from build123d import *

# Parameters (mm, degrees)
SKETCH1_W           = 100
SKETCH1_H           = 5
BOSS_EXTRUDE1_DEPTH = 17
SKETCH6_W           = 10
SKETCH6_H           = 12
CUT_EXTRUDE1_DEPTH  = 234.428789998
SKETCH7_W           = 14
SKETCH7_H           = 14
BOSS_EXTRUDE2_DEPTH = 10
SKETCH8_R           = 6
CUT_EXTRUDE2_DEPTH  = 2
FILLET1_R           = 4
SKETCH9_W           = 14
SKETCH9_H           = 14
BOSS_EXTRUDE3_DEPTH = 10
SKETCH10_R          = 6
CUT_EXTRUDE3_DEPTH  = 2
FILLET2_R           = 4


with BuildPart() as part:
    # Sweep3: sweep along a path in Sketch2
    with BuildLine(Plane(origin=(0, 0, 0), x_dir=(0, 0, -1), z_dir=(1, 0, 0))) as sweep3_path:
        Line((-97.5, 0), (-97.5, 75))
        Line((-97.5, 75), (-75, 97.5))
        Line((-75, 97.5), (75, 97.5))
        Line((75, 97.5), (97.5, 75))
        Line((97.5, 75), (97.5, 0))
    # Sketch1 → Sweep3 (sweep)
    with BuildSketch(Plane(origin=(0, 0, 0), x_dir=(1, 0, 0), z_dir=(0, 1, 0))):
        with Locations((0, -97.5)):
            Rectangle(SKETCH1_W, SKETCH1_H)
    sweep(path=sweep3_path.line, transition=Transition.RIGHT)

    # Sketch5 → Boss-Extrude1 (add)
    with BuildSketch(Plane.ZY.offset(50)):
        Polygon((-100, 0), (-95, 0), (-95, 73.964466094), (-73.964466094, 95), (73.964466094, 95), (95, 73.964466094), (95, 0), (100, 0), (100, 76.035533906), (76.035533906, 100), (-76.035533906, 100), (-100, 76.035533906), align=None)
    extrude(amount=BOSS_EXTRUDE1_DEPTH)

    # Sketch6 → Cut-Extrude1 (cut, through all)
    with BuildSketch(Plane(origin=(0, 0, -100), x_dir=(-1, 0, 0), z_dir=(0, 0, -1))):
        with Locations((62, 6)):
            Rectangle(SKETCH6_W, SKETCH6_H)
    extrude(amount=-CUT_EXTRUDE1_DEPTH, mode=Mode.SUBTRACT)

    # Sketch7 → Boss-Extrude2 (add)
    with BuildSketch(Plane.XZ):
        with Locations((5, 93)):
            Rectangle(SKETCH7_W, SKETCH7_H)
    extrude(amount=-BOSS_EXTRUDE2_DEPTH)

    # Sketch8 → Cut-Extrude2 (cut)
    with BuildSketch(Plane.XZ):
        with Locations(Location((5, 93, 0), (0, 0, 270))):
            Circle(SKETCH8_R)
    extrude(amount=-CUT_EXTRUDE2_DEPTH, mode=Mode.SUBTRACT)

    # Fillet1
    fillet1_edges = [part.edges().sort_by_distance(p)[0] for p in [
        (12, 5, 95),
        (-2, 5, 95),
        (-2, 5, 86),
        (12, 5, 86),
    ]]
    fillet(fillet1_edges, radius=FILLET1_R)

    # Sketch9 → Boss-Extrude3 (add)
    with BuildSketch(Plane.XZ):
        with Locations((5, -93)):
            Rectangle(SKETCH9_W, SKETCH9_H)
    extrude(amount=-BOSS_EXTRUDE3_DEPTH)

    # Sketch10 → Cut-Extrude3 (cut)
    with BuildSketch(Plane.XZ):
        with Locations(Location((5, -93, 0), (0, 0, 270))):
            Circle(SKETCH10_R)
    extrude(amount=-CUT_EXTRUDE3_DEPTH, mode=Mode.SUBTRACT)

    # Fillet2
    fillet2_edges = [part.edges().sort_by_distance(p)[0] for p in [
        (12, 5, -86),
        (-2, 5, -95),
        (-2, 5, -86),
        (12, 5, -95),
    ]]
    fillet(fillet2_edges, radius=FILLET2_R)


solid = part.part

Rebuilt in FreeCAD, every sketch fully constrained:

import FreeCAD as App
import Part
import Sketcher

V = App.Vector
Q = App.Units.Quantity


def edges_at(feature, points):
    """Names of the edges that pass closest to the given points."""
    edges = feature.Shape.Edges
    near = lambda p: min(range(len(edges)), key=lambda i: edges[i].distToShape(Part.Vertex(*p))[0])
    return sorted({f"Edge{near(p) + 1}" for p in points})


def add_polygon(sketch, points):
    """Adds a closed chain of lines whose ends are joined by coincident constraints."""
    first, n = sketch.GeometryCount, len(points)
    for a, b in zip(points, points[1:] + points[:1]):
        sketch.addGeometry(Part.LineSegment(App.Vector(*a, 0), App.Vector(*b, 0)), False)
    for i in range(n):
        sketch.addConstraint(Sketcher.Constraint("Coincident", first + i, 2, first + (i + 1) % n, 1))

doc = App.newDocument("Part")
params = doc.addObject("Spreadsheet::Sheet", "Params")
for row, (alias, value) in enumerate([
    ("sketch1_width", "100 mm"),
    ("sketch1_height", "5 mm"),
    ("sketch2_width", "75 mm"),
    ("sketch2_height", "150 mm"),
    ("sketch3_height", "5 mm"),
    ("pad1_length", "17 mm"),
    ("sketch4_width", "10 mm"),
    ("sketch4_height", "12 mm"),
    ("sketch5_width", "14 mm"),
    ("pad2_length", "10 mm"),
    ("sketch6_diameter", "12 mm"),
    ("pocket2_length", "2 mm"),
    ("fillet_radius", "4 mm"),
    ("sketch7_width", "14 mm"),
    ("pad3_length", "10 mm"),
    ("sketch8_diameter", "12 mm"),
    ("pocket3_length", "2 mm"),
    ("fillet2_radius", "4 mm"),
], start=1):
    params.set(f"A{row}", alias)
    params.set(f"B{row}", "=" + value)
    params.setAlias(f"B{row}", alias)

body = doc.addObject("PartDesign::Body", "Body")

# Sketch on XZ plane
sketch1 = doc.addObject("Sketcher::SketchObject", "Sketch")
body.addObject(sketch1)
sketch1.AttachmentSupport = (doc.XZ_Plane, [""])
sketch1.MapMode = "FlatFace"
add_polygon(sketch1, [(-50, 95), (-50, 100), (50, 100), (50, 95)])  # lines 0-3
sketch1.addConstraint([
    Sketcher.Constraint("Vertical", 0),
    Sketcher.Constraint("Horizontal", 1),
    Sketcher.Constraint("Vertical", 2),
    Sketcher.Constraint("Horizontal", 3),
    Sketcher.Constraint("DistanceX", 1, 1, 1, 2, Q("100 mm")),
    Sketcher.Constraint("DistanceY", 0, 1, 0, 2, Q("5 mm")),
    Sketcher.Constraint("DistanceX", 0, 2, -1, 1, Q("50 mm")),
    Sketcher.Constraint("DistanceY", -1, 1, 0, 2, Q("100 mm")),
])
sketch1.setExpression("Constraints[8]", "Params.sketch1_width")
sketch1.setExpression("Constraints[9]", "Params.sketch1_height")

# Sketch on YZ plane
sketch2 = doc.addObject("Sketcher::SketchObject", "Sketch001")
body.addObject(sketch2)
sketch2.AttachmentSupport = (doc.YZ_Plane, [""])
sketch2.MapMode = "FlatFace"
sketch2.addGeometry([
    Part.LineSegment(V(0, 97.5, 0), V(75, 97.5, 0)),  # 0
    Part.LineSegment(V(75, 97.5, 0), V(97.5, 75, 0)),  # 1
    Part.LineSegment(V(97.5, 75, 0), V(97.5, -75, 0)),  # 2
    Part.LineSegment(V(97.5, -75, 0), V(75, -97.5, 0)),  # 3
    Part.LineSegment(V(75, -97.5, 0), V(0, -97.5, 0)),  # 4
], False)
sketch2.addConstraint([
    Sketcher.Constraint("Coincident", 0, 2, 1, 1),
    Sketcher.Constraint("Coincident", 1, 2, 2, 1),
    Sketcher.Constraint("Coincident", 2, 2, 3, 1),
    Sketcher.Constraint("Coincident", 3, 2, 4, 1),
    Sketcher.Constraint("Horizontal", 0),
    Sketcher.Constraint("Vertical", 2),
    Sketcher.Constraint("Horizontal", 4),
    Sketcher.Constraint("Symmetric", 0, 1, 4, 2, -1, 1),
    Sketcher.Constraint("PointOnObject", 0, 1, -2),
    Sketcher.Constraint("Perpendicular", 1, 3),
    Sketcher.Constraint("Vertical", 0, 2, 3, 2),
    Sketcher.Constraint("Equal", 1, 3),
    Sketcher.Constraint("DistanceX", 0, 1, 0, 2, Q("75 mm")),
    Sketcher.Constraint("DistanceY", 2, 2, 2, 1, Q("150 mm")),
    Sketcher.Constraint("DistanceY", 3, 2, 0, 2, Q("195 mm")),
])
sketch2.setExpression("Constraints[12]", "Params.sketch2_width")
sketch2.setExpression("Constraints[13]", "Params.sketch2_height")
doc.recompute()

additivepipe = doc.addObject("PartDesign::AdditivePipe", "AdditivePipe")
body.addObject(additivepipe)
additivepipe.Profile = sketch1
additivepipe.Spine = (sketch2, ["Edge1", "Edge2", "Edge3", "Edge4", "Edge5"])
additivepipe.Transition = "Right corner"

# Sketch on YZ plane
sketch3 = doc.addObject("Sketcher::SketchObject", "Sketch002")
body.addObject(sketch3)
sketch3.AttachmentSupport = (doc.YZ_Plane, [""])
sketch3.MapMode = "FlatFace"
sketch3.AttachmentOffset = App.Placement(V(0, 0, -50), App.Rotation())
add_polygon(sketch3, [(0, -100), (0, -95), (73.964466, -95), (95, -73.964466), (95, 73.964466), (73.964466, 95), (0, 95), (0, 100), (76.035534, 100), (100, 76.035534), (100, -76.035534), (76.035534, -100)])  # lines 0-11
sketch3.addConstraint([
    Sketcher.Constraint("Vertical", 0),
    Sketcher.Constraint("Horizontal", 1),
    Sketcher.Constraint("Vertical", 3),
    Sketcher.Constraint("Horizontal", 5),
    Sketcher.Constraint("Vertical", 6),
    Sketcher.Constraint("Horizontal", 7),
    Sketcher.Constraint("Vertical", 9),
    Sketcher.Constraint("Horizontal", 11),
    Sketcher.Constraint("Symmetric", 0, 2, 5, 2, -1, 1),
    Sketcher.Constraint("Symmetric", 7, 2, 10, 2, -1),
    Sketcher.Constraint("PointOnObject", 0, 2, -2),
    Sketcher.Constraint("Perpendicular", 2, 4),
    Sketcher.Constraint("Parallel", 4, 8),
    Sketcher.Constraint("Perpendicular", 8, 10),
    Sketcher.Constraint("Vertical", 1, 2, 4, 2),
    Sketcher.Constraint("Equal", 2, 4),
    Sketcher.Constraint("DistanceY", 0, 1, 0, 2, Q("5 mm")),
    Sketcher.Constraint("DistanceY", 0, 2, -1, 1, Q("95 mm")),
    Sketcher.Constraint("DistanceX", -1, 1, 2, 2, Q("95 mm")),
    Sketcher.Constraint("DistanceX", -1, 1, 8, 2, Q("100 mm")),
    Sketcher.Constraint("DistanceY", 9, 2, 3, 2, Q("150 mm")),
    Sketcher.Constraint("DistanceX", 1, 1, 1, 2, Q("73.964466 mm")),
])
sketch3.setExpression("Constraints[28]", "Params.sketch3_height")
pad1 = doc.addObject("PartDesign::Pad", "Pad")
body.addObject(pad1)
pad1.Profile = sketch3
pad1.setExpression("Length", "Params.pad1_length")
pad1.Reversed = True

# Sketch on XY plane
sketch4 = doc.addObject("Sketcher::SketchObject", "Sketch003")
body.addObject(sketch4)
sketch4.AttachmentSupport = (doc.XY_Plane, [""])
sketch4.MapMode = "FlatFace"
sketch4.AttachmentOffset = App.Placement(V(0, 0, -100), App.Rotation())
add_polygon(sketch4, [(-57, 12), (-57, 0), (-67, 0), (-67, 12)])  # lines 0-3
sketch4.addConstraint([
    Sketcher.Constraint("Vertical", 0),
    Sketcher.Constraint("Horizontal", 1),
    Sketcher.Constraint("Vertical", 2),
    Sketcher.Constraint("Horizontal", 3),
    Sketcher.Constraint("PointOnObject", 0, 2, -1),
    Sketcher.Constraint("DistanceX", 1, 2, 1, 1, Q("10 mm")),
    Sketcher.Constraint("DistanceY", 0, 2, 0, 1, Q("12 mm")),
    Sketcher.Constraint("DistanceX", 0, 2, -1, 1, Q("57 mm")),
])
sketch4.setExpression("Constraints[9]", "Params.sketch4_width")
sketch4.setExpression("Constraints[10]", "Params.sketch4_height")
pocket1 = doc.addObject("PartDesign::Pocket", "Pocket")
body.addObject(pocket1)
pocket1.Profile = sketch4
pocket1.Type = "ThroughAll"
pocket1.Reversed = True

# Sketch on XZ plane
sketch5 = doc.addObject("Sketcher::SketchObject", "Sketch004")
body.addObject(sketch5)
sketch5.AttachmentSupport = (doc.XZ_Plane, [""])
sketch5.MapMode = "FlatFace"
add_polygon(sketch5, [(-2, 100), (-2, 86), (12, 86), (12, 100)])  # lines 0-3
sketch5.addConstraint([
    Sketcher.Constraint("Vertical", 0),
    Sketcher.Constraint("Horizontal", 1),
    Sketcher.Constraint("Vertical", 2),
    Sketcher.Constraint("Horizontal", 3),
    Sketcher.Constraint("Equal", 3, 0),
    Sketcher.Constraint("DistanceX", 1, 1, 1, 2, Q("14 mm")),
    Sketcher.Constraint("DistanceX", 0, 2, -1, 1, Q("2 mm")),
    Sketcher.Constraint("DistanceY", -1, 1, 0, 2, Q("86 mm")),
])
sketch5.setExpression("Constraints[9]", "Params.sketch5_width")
pad2 = doc.addObject("PartDesign::Pad", "Pad001")
body.addObject(pad2)
pad2.Profile = sketch5
pad2.setExpression("Length", "Params.pad2_length")
pad2.Reversed = True

# Sketch on XZ plane
sketch6 = doc.addObject("Sketcher::SketchObject", "Sketch005")
body.addObject(sketch6)
sketch6.AttachmentSupport = (doc.XZ_Plane, [""])
sketch6.MapMode = "FlatFace"
sketch6.addGeometry(Part.Circle(V(5, 93, 0), V(0, 0, 1), 6), False)
sketch6.addConstraint([
    Sketcher.Constraint("Diameter", 0, Q("12 mm")),
    Sketcher.Constraint("DistanceX", -1, 1, 0, 3, Q("5 mm")),
    Sketcher.Constraint("DistanceY", -1, 1, 0, 3, Q("93 mm")),
])
sketch6.setExpression("Constraints[0]", "Params.sketch6_diameter")
pocket2 = doc.addObject("PartDesign::Pocket", "Pocket001")
body.addObject(pocket2)
pocket2.Profile = sketch6
pocket2.setExpression("Length", "Params.pocket2_length")
doc.recompute()

fillet = doc.addObject("PartDesign::Fillet", "Fillet")
body.addObject(fillet)
fillet.Base = (pocket2, edges_at(pocket2, [
    (12, 5, 95),
    (-2, 5, 95),
    (-2, 5, 86),
    (12, 5, 86),
]))
fillet.setExpression("Radius", "Params.fillet_radius")

# Sketch on XZ plane
sketch7 = doc.addObject("Sketcher::SketchObject", "Sketch006")
body.addObject(sketch7)
sketch7.AttachmentSupport = (doc.XZ_Plane, [""])
sketch7.MapMode = "FlatFace"
add_polygon(sketch7, [(-2, -86), (-2, -100), (12, -100), (12, -86)])  # lines 0-3
sketch7.addConstraint([
    Sketcher.Constraint("Vertical", 0),
    Sketcher.Constraint("Horizontal", 1),
    Sketcher.Constraint("Vertical", 2),
    Sketcher.Constraint("Horizontal", 3),
    Sketcher.Constraint("Equal", 3, 0),
    Sketcher.Constraint("DistanceX", 1, 1, 1, 2, Q("14 mm")),
    Sketcher.Constraint("DistanceX", 0, 2, -1, 1, Q("2 mm")),
    Sketcher.Constraint("DistanceY", 0, 2, -1, 1, Q("100 mm")),
])
sketch7.setExpression("Constraints[9]", "Params.sketch7_width")
pad3 = doc.addObject("PartDesign::Pad", "Pad002")
body.addObject(pad3)
pad3.Profile = sketch7
pad3.setExpression("Length", "Params.pad3_length")
pad3.Reversed = True

# Sketch on XZ plane
sketch8 = doc.addObject("Sketcher::SketchObject", "Sketch007")
body.addObject(sketch8)
sketch8.AttachmentSupport = (doc.XZ_Plane, [""])
sketch8.MapMode = "FlatFace"
sketch8.addGeometry(Part.Circle(V(5, -93, 0), V(0, 0, 1), 6), False)
sketch8.addConstraint([
    Sketcher.Constraint("Diameter", 0, Q("12 mm")),
    Sketcher.Constraint("DistanceX", -1, 1, 0, 3, Q("5 mm")),
    Sketcher.Constraint("DistanceY", 0, 3, -1, 1, Q("93 mm")),
])
sketch8.setExpression("Constraints[0]", "Params.sketch8_diameter")
pocket3 = doc.addObject("PartDesign::Pocket", "Pocket002")
body.addObject(pocket3)
pocket3.Profile = sketch8
pocket3.setExpression("Length", "Params.pocket3_length")
doc.recompute()

fillet2 = doc.addObject("PartDesign::Fillet", "Fillet001")
body.addObject(fillet2)
fillet2.Base = (pocket3, edges_at(pocket3, [
    (12, 5, -86),
    (-2, 5, -95),
    (-2, 5, -86),
    (12, 5, -95),
]))
fillet2.setExpression("Radius", "Params.fillet2_radius")

doc.recompute()
